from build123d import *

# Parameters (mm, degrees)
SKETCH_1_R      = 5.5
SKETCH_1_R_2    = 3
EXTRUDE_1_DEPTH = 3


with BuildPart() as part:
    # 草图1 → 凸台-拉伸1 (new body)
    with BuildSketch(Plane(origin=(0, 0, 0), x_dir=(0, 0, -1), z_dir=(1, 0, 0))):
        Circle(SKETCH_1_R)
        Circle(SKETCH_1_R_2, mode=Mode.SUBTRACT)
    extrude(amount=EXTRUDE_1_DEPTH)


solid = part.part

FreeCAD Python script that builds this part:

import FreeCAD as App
import Part
import Sketcher
Q = App.Units.Quantity

doc = App.newDocument("Part")
body = doc.addObject("PartDesign::Body", "Body")

# Sketch on YZ plane
sketch1 = body.newObject("Sketcher::SketchObject", "Sketch")
sketch1.AttachmentSupport = (doc.getObject("YZ_Plane"), [""])
sketch1.MapMode = "FlatFace"
sketch1.addGeometry(Part.Circle(App.Vector(0, 0, 0), App.Vector(0, 0, 1), 5.5), False)
sketch1.addGeometry(Part.Circle(App.Vector(0, 0, 0), App.Vector(0, 0, 1), 3), False)
sketch1.addConstraint(Sketcher.Constraint("Coincident", 0, 3, -1, 1))
sketch1.addConstraint(Sketcher.Constraint("Coincident", 1, 3, -1, 1))
sketch1.addConstraint(Sketcher.Constraint("Diameter", 0, Q("11 mm")))
sketch1.addConstraint(Sketcher.Constraint("Diameter", 1, Q("6 mm")))
pad1 = body.newObject("PartDesign::Pad", "Pad")
pad1.Profile = sketch1
pad1.Length = 3

doc.recompute()
